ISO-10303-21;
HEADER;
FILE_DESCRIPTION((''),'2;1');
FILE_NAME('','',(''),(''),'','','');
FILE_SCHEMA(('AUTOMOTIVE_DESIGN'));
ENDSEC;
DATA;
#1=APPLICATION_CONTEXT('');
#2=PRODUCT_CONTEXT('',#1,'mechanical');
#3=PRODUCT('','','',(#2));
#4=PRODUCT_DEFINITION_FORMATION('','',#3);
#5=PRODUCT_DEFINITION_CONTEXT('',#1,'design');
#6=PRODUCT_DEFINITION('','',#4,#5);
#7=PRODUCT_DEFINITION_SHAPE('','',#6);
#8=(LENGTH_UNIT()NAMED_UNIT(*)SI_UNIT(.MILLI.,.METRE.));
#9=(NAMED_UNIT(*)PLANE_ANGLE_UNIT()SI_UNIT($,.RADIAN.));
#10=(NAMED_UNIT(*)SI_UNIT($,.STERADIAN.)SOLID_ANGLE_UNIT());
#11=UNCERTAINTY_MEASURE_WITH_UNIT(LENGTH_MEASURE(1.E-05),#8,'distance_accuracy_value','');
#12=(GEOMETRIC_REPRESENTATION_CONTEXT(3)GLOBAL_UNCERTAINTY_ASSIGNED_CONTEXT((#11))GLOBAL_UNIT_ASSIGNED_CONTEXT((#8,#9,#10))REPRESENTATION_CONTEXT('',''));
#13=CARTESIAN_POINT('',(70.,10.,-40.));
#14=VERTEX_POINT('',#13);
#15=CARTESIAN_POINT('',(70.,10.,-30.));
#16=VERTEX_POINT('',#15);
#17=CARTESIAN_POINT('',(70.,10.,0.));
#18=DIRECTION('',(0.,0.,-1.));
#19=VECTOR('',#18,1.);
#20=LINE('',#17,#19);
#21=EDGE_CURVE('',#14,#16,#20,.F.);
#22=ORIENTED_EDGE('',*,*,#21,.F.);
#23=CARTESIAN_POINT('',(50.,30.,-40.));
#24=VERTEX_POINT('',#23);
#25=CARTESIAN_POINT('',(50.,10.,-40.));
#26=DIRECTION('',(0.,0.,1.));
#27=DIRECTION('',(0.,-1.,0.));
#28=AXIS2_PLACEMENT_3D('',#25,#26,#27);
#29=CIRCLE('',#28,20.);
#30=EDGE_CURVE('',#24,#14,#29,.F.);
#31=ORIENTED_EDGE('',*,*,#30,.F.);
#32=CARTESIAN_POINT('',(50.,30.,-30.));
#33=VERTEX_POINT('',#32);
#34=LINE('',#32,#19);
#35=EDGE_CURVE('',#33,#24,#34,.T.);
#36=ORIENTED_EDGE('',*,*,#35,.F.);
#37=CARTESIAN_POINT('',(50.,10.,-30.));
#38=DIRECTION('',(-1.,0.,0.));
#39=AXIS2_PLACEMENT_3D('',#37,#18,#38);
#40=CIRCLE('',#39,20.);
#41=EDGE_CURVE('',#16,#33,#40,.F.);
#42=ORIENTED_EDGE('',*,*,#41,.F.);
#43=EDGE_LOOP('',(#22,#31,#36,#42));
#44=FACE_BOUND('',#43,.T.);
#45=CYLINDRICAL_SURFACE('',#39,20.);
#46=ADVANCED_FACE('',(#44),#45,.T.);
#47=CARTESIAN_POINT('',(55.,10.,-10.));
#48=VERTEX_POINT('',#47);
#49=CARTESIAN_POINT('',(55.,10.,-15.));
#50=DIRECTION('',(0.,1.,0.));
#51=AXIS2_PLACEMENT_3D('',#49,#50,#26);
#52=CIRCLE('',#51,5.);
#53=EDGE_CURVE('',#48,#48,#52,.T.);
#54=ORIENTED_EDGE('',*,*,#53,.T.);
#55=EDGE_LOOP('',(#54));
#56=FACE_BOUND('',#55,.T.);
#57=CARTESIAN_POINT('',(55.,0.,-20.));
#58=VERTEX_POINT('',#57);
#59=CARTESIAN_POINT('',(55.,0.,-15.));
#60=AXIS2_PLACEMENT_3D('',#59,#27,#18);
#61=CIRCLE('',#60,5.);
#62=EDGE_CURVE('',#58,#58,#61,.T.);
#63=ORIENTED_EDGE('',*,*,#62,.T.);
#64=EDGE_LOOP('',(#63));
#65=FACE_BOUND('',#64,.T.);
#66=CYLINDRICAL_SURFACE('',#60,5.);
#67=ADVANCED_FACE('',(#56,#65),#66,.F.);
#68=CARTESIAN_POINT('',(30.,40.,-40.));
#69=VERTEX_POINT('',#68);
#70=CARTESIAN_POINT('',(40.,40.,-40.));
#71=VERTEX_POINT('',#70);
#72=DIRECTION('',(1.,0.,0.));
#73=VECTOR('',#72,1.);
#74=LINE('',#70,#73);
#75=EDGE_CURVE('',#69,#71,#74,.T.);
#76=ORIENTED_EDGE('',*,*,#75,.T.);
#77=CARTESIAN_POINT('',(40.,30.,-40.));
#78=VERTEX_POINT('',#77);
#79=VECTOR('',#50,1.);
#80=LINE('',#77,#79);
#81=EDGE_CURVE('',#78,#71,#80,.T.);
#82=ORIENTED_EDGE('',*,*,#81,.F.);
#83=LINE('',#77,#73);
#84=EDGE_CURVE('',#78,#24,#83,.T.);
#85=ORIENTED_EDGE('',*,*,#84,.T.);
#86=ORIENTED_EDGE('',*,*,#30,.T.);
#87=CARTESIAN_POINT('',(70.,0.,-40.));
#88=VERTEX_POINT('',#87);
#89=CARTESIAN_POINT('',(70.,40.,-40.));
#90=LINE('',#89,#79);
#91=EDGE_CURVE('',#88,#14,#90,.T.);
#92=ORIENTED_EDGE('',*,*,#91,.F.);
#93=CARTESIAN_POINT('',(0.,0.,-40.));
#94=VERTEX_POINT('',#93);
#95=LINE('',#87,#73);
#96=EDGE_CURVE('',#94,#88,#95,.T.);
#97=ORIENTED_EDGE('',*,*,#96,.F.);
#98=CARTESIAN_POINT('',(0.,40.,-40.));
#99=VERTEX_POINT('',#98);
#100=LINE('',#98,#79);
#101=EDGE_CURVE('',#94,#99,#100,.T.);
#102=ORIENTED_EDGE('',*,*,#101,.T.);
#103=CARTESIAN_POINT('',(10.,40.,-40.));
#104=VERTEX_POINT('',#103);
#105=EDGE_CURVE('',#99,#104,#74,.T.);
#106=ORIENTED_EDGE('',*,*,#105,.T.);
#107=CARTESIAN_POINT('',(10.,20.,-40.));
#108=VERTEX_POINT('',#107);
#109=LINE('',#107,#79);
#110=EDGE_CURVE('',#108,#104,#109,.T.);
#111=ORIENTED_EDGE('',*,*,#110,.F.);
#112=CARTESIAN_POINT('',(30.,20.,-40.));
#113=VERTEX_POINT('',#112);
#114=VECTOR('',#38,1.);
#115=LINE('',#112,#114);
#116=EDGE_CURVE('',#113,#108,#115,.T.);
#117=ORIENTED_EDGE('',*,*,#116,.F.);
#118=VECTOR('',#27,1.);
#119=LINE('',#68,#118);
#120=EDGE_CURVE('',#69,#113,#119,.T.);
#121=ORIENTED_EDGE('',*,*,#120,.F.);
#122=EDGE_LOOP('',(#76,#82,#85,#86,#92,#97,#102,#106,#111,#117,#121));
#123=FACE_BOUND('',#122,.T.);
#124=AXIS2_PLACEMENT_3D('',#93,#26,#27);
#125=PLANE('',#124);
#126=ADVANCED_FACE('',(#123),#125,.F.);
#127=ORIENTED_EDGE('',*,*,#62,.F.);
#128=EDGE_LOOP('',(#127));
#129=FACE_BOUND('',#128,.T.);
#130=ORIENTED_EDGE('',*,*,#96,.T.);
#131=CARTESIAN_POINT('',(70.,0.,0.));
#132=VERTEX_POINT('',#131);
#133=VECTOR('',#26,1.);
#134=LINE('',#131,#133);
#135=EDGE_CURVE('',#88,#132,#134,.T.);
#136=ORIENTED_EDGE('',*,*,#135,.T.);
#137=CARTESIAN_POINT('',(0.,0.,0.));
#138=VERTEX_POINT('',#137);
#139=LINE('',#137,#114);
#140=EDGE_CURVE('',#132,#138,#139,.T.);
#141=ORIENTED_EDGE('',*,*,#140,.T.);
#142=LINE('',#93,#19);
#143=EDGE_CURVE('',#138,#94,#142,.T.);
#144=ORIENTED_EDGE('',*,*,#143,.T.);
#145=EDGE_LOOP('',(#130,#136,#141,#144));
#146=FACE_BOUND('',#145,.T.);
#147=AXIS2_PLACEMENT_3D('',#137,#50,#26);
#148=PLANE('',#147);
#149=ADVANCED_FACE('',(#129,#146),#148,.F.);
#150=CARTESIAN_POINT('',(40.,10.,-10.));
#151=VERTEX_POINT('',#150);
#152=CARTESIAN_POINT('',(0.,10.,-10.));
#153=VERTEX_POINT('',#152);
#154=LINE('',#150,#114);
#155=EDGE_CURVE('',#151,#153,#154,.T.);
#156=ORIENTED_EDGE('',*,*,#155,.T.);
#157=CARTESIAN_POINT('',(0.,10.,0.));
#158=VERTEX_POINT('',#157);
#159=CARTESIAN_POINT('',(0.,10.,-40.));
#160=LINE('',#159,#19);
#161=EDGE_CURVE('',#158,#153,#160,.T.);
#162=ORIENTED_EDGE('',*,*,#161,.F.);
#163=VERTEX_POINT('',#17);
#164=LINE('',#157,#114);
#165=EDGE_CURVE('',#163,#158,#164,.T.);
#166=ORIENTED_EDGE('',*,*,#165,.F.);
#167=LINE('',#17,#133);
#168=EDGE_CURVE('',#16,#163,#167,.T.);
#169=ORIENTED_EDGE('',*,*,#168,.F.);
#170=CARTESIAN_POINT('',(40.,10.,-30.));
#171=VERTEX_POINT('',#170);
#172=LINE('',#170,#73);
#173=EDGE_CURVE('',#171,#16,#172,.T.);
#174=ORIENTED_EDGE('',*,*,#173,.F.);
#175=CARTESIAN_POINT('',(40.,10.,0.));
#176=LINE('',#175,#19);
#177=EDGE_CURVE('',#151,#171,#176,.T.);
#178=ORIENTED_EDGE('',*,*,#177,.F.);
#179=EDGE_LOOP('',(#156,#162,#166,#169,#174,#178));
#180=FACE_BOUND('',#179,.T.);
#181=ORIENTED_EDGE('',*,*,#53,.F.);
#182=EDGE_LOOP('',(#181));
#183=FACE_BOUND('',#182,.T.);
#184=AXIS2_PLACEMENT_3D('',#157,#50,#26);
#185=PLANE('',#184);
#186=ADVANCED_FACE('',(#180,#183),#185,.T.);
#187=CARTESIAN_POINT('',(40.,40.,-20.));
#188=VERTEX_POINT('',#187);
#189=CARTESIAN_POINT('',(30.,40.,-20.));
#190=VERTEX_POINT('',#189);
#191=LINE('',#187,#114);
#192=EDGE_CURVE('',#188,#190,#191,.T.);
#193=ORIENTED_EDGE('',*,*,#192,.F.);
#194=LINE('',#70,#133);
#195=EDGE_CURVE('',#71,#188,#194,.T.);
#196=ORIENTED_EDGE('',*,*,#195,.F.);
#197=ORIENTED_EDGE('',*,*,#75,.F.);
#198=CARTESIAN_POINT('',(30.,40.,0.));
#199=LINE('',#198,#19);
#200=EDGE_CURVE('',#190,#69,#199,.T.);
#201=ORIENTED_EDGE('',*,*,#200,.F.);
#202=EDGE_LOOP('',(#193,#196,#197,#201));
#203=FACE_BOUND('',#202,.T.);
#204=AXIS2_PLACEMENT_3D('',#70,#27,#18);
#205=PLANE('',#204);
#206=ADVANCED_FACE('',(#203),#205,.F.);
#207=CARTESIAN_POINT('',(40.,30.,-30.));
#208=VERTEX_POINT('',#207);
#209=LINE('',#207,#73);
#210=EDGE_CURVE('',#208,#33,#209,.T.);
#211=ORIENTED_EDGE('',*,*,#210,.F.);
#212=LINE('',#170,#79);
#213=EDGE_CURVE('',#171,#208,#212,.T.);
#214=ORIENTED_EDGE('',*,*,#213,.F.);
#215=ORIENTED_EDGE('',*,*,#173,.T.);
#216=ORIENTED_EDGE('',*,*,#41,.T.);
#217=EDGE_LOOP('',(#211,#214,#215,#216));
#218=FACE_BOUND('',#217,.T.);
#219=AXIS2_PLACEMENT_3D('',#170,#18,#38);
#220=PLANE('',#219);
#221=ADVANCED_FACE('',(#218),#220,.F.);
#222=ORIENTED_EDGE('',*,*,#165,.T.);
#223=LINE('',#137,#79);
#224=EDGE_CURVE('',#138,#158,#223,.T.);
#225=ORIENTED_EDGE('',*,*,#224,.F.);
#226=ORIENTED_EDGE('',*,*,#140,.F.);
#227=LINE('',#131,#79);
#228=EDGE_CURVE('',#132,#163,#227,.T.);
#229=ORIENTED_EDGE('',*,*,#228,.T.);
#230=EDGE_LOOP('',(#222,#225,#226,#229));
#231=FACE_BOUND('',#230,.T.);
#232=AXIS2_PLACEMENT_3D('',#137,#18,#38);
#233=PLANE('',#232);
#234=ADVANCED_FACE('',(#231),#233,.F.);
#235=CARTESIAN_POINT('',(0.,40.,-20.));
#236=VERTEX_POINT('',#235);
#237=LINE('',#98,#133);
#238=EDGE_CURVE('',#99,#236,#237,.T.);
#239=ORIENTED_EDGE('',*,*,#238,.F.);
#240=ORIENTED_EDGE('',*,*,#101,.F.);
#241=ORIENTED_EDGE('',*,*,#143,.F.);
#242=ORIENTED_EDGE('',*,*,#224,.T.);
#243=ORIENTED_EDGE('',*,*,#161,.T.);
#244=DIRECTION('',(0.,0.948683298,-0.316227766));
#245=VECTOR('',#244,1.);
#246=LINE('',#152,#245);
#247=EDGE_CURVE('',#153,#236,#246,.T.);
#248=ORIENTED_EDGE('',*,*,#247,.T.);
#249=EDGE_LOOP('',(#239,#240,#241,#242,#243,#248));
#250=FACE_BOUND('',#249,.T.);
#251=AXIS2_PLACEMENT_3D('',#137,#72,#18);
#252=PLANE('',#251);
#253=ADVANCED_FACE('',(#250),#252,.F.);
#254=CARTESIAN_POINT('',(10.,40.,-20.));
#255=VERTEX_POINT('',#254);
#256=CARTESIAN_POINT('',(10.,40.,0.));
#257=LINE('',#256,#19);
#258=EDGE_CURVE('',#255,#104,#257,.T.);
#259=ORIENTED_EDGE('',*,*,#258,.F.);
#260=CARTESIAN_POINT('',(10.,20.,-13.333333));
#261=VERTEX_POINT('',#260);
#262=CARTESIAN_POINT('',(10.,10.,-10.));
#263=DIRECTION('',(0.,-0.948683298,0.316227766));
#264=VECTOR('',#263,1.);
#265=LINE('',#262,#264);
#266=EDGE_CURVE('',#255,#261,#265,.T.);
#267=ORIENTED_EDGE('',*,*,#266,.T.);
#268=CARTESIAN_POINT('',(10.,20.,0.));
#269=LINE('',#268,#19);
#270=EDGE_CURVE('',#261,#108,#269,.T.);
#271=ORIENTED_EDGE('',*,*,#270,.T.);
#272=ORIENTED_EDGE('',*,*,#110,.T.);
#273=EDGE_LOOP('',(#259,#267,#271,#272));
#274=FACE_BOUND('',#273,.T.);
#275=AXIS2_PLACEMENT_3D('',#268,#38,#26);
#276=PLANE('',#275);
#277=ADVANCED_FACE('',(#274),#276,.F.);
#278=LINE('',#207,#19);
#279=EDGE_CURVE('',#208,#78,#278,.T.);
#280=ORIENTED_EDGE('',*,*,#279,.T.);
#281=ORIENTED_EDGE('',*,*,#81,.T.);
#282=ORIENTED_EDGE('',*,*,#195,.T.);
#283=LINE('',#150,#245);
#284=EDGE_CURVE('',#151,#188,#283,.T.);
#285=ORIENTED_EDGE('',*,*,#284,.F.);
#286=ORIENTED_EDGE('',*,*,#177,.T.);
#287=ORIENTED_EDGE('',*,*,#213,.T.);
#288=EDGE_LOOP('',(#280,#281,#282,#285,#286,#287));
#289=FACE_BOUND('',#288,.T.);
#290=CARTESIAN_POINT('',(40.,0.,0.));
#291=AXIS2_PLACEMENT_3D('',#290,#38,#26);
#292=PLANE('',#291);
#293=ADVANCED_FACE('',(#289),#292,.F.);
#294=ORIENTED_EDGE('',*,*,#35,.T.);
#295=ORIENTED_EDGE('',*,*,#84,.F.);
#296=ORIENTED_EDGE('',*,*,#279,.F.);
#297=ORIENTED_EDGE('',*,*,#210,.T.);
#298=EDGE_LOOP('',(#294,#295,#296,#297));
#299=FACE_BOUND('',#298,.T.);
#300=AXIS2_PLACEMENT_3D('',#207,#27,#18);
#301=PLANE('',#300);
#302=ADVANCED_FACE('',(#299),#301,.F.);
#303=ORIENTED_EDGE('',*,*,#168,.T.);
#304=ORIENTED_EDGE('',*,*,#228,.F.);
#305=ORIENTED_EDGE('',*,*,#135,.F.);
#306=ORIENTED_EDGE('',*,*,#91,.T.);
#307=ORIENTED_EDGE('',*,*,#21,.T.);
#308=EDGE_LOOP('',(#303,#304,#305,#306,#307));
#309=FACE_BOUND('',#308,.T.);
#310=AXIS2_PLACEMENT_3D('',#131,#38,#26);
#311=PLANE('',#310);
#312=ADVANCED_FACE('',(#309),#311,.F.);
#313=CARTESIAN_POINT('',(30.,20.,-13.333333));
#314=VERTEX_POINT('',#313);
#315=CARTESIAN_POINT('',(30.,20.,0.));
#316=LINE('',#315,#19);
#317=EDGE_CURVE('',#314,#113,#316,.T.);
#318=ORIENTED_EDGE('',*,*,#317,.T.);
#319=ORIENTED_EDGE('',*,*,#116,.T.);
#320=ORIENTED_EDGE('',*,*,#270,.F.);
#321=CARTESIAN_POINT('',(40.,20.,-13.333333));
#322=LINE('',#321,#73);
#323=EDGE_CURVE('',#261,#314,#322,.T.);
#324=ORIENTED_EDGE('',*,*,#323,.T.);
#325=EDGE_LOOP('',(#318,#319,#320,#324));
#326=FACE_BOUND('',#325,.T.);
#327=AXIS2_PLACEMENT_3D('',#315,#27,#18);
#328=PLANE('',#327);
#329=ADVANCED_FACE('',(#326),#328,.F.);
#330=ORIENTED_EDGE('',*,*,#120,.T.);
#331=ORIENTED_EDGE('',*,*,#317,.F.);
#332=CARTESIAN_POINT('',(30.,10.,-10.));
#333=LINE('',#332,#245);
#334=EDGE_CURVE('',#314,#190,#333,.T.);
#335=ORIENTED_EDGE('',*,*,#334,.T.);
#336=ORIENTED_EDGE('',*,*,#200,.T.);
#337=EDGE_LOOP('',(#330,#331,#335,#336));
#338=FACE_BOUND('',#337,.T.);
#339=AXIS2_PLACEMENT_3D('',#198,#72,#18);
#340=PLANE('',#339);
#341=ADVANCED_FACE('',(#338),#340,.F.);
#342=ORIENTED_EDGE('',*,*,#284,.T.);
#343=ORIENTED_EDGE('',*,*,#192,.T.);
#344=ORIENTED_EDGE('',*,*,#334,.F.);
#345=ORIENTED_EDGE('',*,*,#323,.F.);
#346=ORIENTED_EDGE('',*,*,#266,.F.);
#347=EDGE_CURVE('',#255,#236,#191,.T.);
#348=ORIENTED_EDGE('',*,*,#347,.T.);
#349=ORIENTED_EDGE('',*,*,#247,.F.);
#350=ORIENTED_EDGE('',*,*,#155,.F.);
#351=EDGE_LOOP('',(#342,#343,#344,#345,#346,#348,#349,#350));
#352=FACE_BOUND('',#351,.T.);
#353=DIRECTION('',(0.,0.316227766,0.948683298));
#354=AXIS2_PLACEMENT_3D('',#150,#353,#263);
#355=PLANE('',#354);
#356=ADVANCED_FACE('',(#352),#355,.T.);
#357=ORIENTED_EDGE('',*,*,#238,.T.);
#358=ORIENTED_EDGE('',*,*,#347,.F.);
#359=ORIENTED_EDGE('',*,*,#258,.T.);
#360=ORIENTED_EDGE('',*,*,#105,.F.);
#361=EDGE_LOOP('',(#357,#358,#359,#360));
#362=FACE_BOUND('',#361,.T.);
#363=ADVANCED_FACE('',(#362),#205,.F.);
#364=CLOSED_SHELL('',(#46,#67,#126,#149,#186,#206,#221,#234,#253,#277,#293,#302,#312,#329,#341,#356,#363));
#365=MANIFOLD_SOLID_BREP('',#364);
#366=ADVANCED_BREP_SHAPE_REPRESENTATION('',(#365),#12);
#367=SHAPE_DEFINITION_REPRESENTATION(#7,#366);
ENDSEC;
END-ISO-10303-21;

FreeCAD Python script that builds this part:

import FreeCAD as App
import Part
import Sketcher

V = App.Vector


def edges_at(feature, points):
    """Names of the edges that pass closest to the given points."""
    edges = feature.Shape.Edges
    near = lambda p: min(range(len(edges)), key=lambda i: edges[i].distToShape(Part.Vertex(*p))[0])
    return sorted({f"Edge{near(p) + 1}" for p in points})

doc = App.newDocument("Part")
body = doc.addObject("PartDesign::Body", "Body")

# Sketch on YZ plane
sketch1 = body.newObject("Sketcher::SketchObject", "Sketch")
sketch1.AttachmentSupport = (doc.getObject("YZ_Plane"), [""])
sketch1.MapMode = "FlatFace"
sketch1.addGeometry([
    Part.LineSegment(V(10, -10, 0), V(40, -20, 0)),
    Part.LineSegment(V(40, -20, 0), V(10, -20, 0)),
    Part.LineSegment(V(10, -20, 0), V(10, -10, 0)),
], False)
sketch1.addConstraint([
    Sketcher.Constraint("Coincident", 0, 2, 1, 1),
    Sketcher.Constraint("Coincident", 1, 2, 2, 1),
    Sketcher.Constraint("Coincident", 2, 2, 0, 1),
    Sketcher.Constraint("Horizontal", 1),
    Sketcher.Constraint("Vertical", 2),
    Sketcher.Constraint("DistanceX", 1, 2, 1, 1, 30.0),
    Sketcher.Constraint("DistanceY", 2, 1, 2, 2, 10.0),
    Sketcher.Constraint("DistanceX", -1, 1, 0, 2, 40.0),
    Sketcher.Constraint("DistanceY", 0, 2, -1, 1, 20.0),
])
pad1 = body.newObject("PartDesign::Pad", "Pad")
pad1.Profile = sketch1
pad1.Length = 40

# Sketch on XY plane
sketch2 = body.newObject("Sketcher::SketchObject", "Sketch001")
sketch2.AttachmentSupport = (doc.getObject("XY_Plane"), [""])
sketch2.MapMode = "FlatFace"
sketch2.AttachmentOffset = App.Placement(V(0, 0, -20), App.Rotation())
sketch2.addGeometry([
    Part.LineSegment(V(40, 40, 0), V(40, 10, 0)),
    Part.LineSegment(V(40, 10, 0), V(0, 10, 0)),
    Part.LineSegment(V(0, 10, 0), V(0, 40, 0)),
    Part.LineSegment(V(0, 40, 0), V(40, 40, 0)),
], False)
sketch2.addConstraint([
    Sketcher.Constraint("Coincident", 0, 2, 1, 1),
    Sketcher.Constraint("Coincident", 1, 2, 2, 1),
    Sketcher.Constraint("Coincident", 2, 2, 3, 1),
    Sketcher.Constraint("Coincident", 3, 2, 0, 1),
    Sketcher.Constraint("Vertical", 0),
    Sketcher.Constraint("Horizontal", 1),
    Sketcher.Constraint("Vertical", 2),
    Sketcher.Constraint("Horizontal", 3),
    Sketcher.Constraint("PointOnObject", 1, 2, -2),
    Sketcher.Constraint("DistanceX", 1, 2, 1, 1, 40.0),
    Sketcher.Constraint("DistanceY", 0, 2, 0, 1, 30.0),
    Sketcher.Constraint("DistanceY", -1, 1, 0, 2, 10.0),
])
pad2 = body.newObject("PartDesign::Pad", "Pad001")
pad2.Profile = sketch2
pad2.Length = 20
pad2.Reversed = True

# Sketch on YZ plane
sketch3 = body.newObject("Sketcher::SketchObject", "Sketch002")
sketch3.AttachmentSupport = (doc.getObject("YZ_Plane"), [""])
sketch3.MapMode = "FlatFace"
sketch3.AttachmentOffset = App.Placement(V(0, 0, 40), App.Rotation())
sketch3.addGeometry([
    Part.LineSegment(V(10, 0, 0), V(10, -40, 0)),
    Part.LineSegment(V(10, -40, 0), V(40, -40, 0)),
    Part.LineSegment(V(40, -40, 0), V(40, -20, 0)),
    Part.LineSegment(V(40, -20, 0), V(10, 0, 0)),
], False)
sketch3.addConstraint([
    Sketcher.Constraint("Coincident", 0, 2, 1, 1),
    Sketcher.Constraint("Coincident", 1, 2, 2, 1),
    Sketcher.Constraint("Coincident", 2, 2, 3, 1),
    Sketcher.Constraint("Coincident", 3, 2, 0, 1),
    Sketcher.Constraint("Vertical", 0),
    Sketcher.Constraint("Horizontal", 1),
    Sketcher.Constraint("Vertical", 2),
    Sketcher.Constraint("PointOnObject", 3, 2, -1),
    Sketcher.Constraint("DistanceX", 1, 1, 1, 2, 30.0),
    Sketcher.Constraint("DistanceY", 0, 2, 0, 1, 40.0),
    Sketcher.Constraint("DistanceY", 2, 1, 2, 2, 20.0),
    Sketcher.Constraint("DistanceX", -1, 1, 0, 2, 10.0),
])
pad3 = body.newObject("PartDesign::Pad", "Pad002")
pad3.Profile = sketch3
pad3.Length = 30

# Sketch on YZ plane
sketch4 = body.newObject("Sketcher::SketchObject", "Sketch003")
sketch4.AttachmentSupport = (doc.getObject("YZ_Plane"), [""])
sketch4.MapMode = "FlatFace"
sketch4.AttachmentOffset = App.Placement(V(0, 0, 70), App.Rotation())
sketch4.addGeometry([
    Part.LineSegment(V(40, -20, 0), V(10, 0, 0)),  # 0
    Part.LineSegment(V(10, 0, 0), V(10, -30, 0)),  # 1
    Part.LineSegment(V(10, -30, 0), V(30, -30, 0)),  # 2
    Part.LineSegment(V(30, -30, 0), V(30, -40, 0)),  # 3
    Part.LineSegment(V(30, -40, 0), V(40, -40, 0)),  # 4
    Part.LineSegment(V(40, -40, 0), V(40, -20, 0)),  # 5
], False)
sketch4.addConstraint([
    Sketcher.Constraint("Coincident", 0, 2, 1, 1),
    Sketcher.Constraint("Coincident", 1, 2, 2, 1),
    Sketcher.Constraint("Coincident", 2, 2, 3, 1),
    Sketcher.Constraint("Coincident", 3, 2, 4, 1),
    Sketcher.Constraint("Coincident", 4, 2, 5, 1),
    Sketcher.Constraint("Coincident", 5, 2, 0, 1),
    Sketcher.Constraint("Vertical", 1),
    Sketcher.Constraint("Horizontal", 2),
    Sketcher.Constraint("Vertical", 3),
    Sketcher.Constraint("Horizontal", 4),
    Sketcher.Constraint("Vertical", 5),
    Sketcher.Constraint("PointOnObject", 0, 2, -1),
    Sketcher.Constraint("Equal", 4, 3),
    Sketcher.Constraint("Equal", 2, 5),
    Sketcher.Constraint("DistanceX", 2, 1, 2, 2, 20.0),
    Sketcher.Constraint("DistanceX", 4, 1, 4, 2, 10.0),
    Sketcher.Constraint("DistanceY", 1, 2, 1, 1, 30.0),
    Sketcher.Constraint("DistanceX", -1, 1, 0, 2, 10.0),
])
pocket1 = body.newObject("PartDesign::Pocket", "Pocket")
pocket1.Profile = sketch4
pocket1.Length = 30

# Sketch on XZ plane
sketch5 = body.newObject("Sketcher::SketchObject", "Sketch004")
sketch5.AttachmentSupport = (doc.getObject("XZ_Plane"), [""])
sketch5.MapMode = "FlatFace"
sketch5.AttachmentOffset = App.Placement(V(0, 0, -10), App.Rotation())
sketch5.addGeometry([
    Part.LineSegment(V(0, 0, 0), V(0, -40, 0)),
    Part.LineSegment(V(0, -40, 0), V(70, -40, 0)),
    Part.LineSegment(V(70, -40, 0), V(70, 0, 0)),
    Part.LineSegment(V(70, 0, 0), V(0, 0, 0)),
], False)
sketch5.addConstraint([
    Sketcher.Constraint("Coincident", 0, 2, 1, 1),
    Sketcher.Constraint("Coincident", 1, 2, 2, 1),
    Sketcher.Constraint("Coincident", 2, 2, 3, 1),
    Sketcher.Constraint("Coincident", 3, 2, 0, 1),
    Sketcher.Constraint("Vertical", 0),
    Sketcher.Constraint("Horizontal", 1),
    Sketcher.Constraint("Vertical", 2),
    Sketcher.Constraint("Horizontal", 3),
    Sketcher.Constraint("Coincident", 3, 2, -1, 1),
    Sketcher.Constraint("DistanceX", 1, 1, 1, 2, 70.0),
    Sketcher.Constraint("DistanceY", 0, 2, 0, 1, 40.0),
])
pad4 = body.newObject("PartDesign::Pad", "Pad003")
pad4.Profile = sketch5
pad4.Length = 10

# Sketch on XY plane
sketch6 = body.newObject("Sketcher::SketchObject", "Sketch005")
sketch6.AttachmentSupport = (doc.getObject("XY_Plane"), [""])
sketch6.MapMode = "FlatFace"
sketch6.AttachmentOffset = App.Placement(V(0, 0, -40), App.Rotation())
sketch6.addGeometry([
    Part.LineSegment(V(30, 40, 0), V(30, 20, 0)),
    Part.LineSegment(V(30, 20, 0), V(10, 20, 0)),
    Part.LineSegment(V(10, 20, 0), V(10, 40, 0)),
    Part.LineSegment(V(10, 40, 0), V(30, 40, 0)),
], False)
sketch6.addConstraint([
    Sketcher.Constraint("Coincident", 0, 2, 1, 1),
    Sketcher.Constraint("Coincident", 1, 2, 2, 1),
    Sketcher.Constraint("Coincident", 2, 2, 3, 1),
    Sketcher.Constraint("Coincident", 3, 2, 0, 1),
    Sketcher.Constraint("Vertical", 0),
    Sketcher.Constraint("Horizontal", 1),
    Sketcher.Constraint("Vertical", 2),
    Sketcher.Constraint("Horizontal", 3),
    Sketcher.Constraint("Equal", 3, 0),
    Sketcher.Constraint("DistanceX", 1, 2, 1, 1, 20.0),
    Sketcher.Constraint("DistanceX", -1, 1, 0, 2, 30.0),
    Sketcher.Constraint("DistanceY", -1, 1, 0, 2, 20.0),
])
pocket2 = body.newObject("PartDesign::Pocket", "Pocket001")
pocket2.Profile = sketch6
pocket2.Type = "ThroughAll"
pocket2.Reversed = True

# Sketch on XZ plane
sketch7 = body.newObject("Sketcher::SketchObject", "Sketch006")
sketch7.AttachmentSupport = (doc.getObject("XZ_Plane"), [""])
sketch7.MapMode = "FlatFace"
sketch7.addGeometry(Part.Circle(V(55, -15, 0), V(0, 0, 1), 5), False)
sketch7.addConstraint([
    Sketcher.Constraint("Diameter", 0, 10.0),
    Sketcher.Constraint("DistanceX", -1, 1, 0, 3, 55.0),
    Sketcher.Constraint("DistanceY", 0, 3, -1, 1, 15.0),
])
doc.recompute()
hole = body.newObject("PartDesign::Hole", "Hole")
hole.Profile = sketch7
hole.ThreadType = "None"
hole.Diameter = 10
hole.DepthType = "Dimension"
hole.Depth = 40
hole.DrillPoint = "Flat"
doc.recompute()

fillet = body.newObject("PartDesign::Fillet", "Fillet")
fillet.Base = (hole, edges_at(hole, [(70, 30, -35)]))
fillet.Radius = 20

doc.recompute()
